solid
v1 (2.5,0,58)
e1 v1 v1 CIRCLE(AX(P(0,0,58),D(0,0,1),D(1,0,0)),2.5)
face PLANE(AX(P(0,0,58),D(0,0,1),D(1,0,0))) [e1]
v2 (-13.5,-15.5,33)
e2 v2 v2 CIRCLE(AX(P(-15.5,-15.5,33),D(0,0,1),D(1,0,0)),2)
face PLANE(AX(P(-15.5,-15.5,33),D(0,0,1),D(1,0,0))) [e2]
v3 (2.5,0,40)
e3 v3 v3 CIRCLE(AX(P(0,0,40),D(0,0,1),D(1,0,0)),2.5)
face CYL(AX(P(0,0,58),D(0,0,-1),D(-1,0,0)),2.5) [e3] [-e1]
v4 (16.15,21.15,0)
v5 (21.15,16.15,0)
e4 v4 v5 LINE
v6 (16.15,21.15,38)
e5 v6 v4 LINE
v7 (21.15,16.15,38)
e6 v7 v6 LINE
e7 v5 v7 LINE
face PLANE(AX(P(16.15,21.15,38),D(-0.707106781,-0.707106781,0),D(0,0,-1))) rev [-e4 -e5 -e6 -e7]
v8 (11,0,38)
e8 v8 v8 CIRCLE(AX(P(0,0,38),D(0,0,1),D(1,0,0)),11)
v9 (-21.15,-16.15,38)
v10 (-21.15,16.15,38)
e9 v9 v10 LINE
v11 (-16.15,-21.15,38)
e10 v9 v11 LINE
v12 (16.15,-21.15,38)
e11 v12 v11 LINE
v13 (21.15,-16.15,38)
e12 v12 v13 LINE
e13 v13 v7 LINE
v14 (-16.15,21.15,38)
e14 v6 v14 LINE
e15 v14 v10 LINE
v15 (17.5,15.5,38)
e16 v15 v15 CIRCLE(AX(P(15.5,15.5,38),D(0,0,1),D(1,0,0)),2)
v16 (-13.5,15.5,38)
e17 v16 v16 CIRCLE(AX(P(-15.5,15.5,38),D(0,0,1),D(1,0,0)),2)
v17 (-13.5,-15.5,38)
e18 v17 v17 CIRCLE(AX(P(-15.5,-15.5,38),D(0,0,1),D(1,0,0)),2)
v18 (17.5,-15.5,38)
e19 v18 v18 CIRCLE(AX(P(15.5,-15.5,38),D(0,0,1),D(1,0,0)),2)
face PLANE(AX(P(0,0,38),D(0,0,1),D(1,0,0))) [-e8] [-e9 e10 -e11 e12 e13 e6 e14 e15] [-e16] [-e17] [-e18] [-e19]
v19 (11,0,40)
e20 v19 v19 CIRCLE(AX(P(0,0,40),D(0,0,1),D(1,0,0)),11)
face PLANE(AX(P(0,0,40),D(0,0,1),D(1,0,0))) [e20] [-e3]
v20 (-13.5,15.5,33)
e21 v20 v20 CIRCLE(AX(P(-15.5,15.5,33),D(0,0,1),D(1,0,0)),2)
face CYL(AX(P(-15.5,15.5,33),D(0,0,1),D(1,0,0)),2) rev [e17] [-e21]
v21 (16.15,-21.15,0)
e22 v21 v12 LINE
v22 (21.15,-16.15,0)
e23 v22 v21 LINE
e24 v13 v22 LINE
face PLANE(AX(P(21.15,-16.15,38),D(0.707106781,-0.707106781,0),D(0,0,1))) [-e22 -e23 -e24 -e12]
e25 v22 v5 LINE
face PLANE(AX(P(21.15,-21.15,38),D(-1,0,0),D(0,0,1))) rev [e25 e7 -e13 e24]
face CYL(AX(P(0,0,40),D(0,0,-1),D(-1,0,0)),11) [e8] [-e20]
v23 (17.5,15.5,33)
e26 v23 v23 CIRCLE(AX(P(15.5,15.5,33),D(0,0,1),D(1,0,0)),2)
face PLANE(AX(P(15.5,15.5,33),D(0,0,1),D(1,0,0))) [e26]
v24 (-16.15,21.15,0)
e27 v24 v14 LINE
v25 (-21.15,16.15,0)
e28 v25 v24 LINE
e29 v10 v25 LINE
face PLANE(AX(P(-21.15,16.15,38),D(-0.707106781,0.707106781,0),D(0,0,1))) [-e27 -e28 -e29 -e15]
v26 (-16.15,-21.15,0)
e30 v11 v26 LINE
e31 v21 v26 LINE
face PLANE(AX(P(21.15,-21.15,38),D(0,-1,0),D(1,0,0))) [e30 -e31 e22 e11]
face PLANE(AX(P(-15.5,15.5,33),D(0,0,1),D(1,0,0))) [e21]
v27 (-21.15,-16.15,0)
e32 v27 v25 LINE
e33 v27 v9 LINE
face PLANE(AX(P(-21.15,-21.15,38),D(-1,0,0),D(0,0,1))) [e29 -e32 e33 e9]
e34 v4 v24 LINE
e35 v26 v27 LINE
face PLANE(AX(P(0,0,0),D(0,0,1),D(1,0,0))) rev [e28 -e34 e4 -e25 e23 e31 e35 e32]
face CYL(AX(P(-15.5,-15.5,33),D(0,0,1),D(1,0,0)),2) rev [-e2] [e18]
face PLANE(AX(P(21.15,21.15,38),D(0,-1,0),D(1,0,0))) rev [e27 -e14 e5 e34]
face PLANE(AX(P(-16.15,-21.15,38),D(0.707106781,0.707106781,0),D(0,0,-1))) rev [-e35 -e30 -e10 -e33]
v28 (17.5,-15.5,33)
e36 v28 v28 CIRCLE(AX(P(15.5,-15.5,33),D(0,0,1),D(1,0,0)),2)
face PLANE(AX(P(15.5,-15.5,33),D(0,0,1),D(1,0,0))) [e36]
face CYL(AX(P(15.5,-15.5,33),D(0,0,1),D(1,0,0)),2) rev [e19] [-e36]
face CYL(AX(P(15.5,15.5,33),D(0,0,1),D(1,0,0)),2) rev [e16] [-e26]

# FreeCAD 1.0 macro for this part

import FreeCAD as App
import Part
import Sketcher
from FreeCAD import Vector


def edges_at(feature, points):
    """Names of the edges that pass closest to the given points."""
    edges = feature.Shape.Edges
    near = lambda p: min(range(len(edges)), key=lambda i: edges[i].distToShape(Part.Vertex(*p))[0])
    return sorted({f"Edge{near(p) + 1}" for p in points})

doc = App.newDocument("Part")
body = doc.addObject("PartDesign::Body", "Body")

# Sketch on XY plane
sketch1 = doc.addObject("Sketcher::SketchObject", "Sketch")
body.addObject(sketch1)
sketch1.AttachmentSupport = (doc.XY_Plane, [""])
sketch1.MapMode = "FlatFace"
sketch1.addGeometry([
    Part.LineSegment(Vector(-21.15, 21.15, 0), Vector(-21.15, -21.15, 0)),
    Part.LineSegment(Vector(-21.15, -21.15, 0), Vector(21.15, -21.15, 0)),
    Part.LineSegment(Vector(21.15, -21.15, 0), Vector(21.15, 21.15, 0)),
    Part.LineSegment(Vector(21.15, 21.15, 0), Vector(-21.15, 21.15, 0)),
], False)
sketch1.addConstraint([
    Sketcher.Constraint("Coincident", 0, 2, 1, 1),
    Sketcher.Constraint("Coincident", 1, 2, 2, 1),
    Sketcher.Constraint("Coincident", 2, 2, 3, 1),
    Sketcher.Constraint("Coincident", 3, 2, 0, 1),
    Sketcher.Constraint("Vertical", 0),
    Sketcher.Constraint("Horizontal", 1),
    Sketcher.Constraint("Vertical", 2),
    Sketcher.Constraint("Horizontal", 3),
    Sketcher.Constraint("Symmetric", 0, 2, 2, 2, -1, 1),
    Sketcher.Constraint("Equal", 3, 0),
    Sketcher.Constraint("DistanceX", 1, 1, 1, 2, 42.3),
])
pad1 = doc.addObject("PartDesign::Pad", "Pad")
body.addObject(pad1)
pad1.Profile = sketch1
pad1.Length = 38
doc.recompute()

chamfer = doc.addObject("PartDesign::Chamfer", "Chamfer")
body.addObject(chamfer)
chamfer.Base = (pad1, edges_at(pad1, [
    (21.15, -21.15, 19),
    (-21.15, -21.15, 19),
    (-21.15, 21.15, 19),
    (21.15, 21.15, 19),
]))
chamfer.Size = 5

# Sketch on XY plane
sketch2 = doc.addObject("Sketcher::SketchObject", "Sketch001")
body.addObject(sketch2)
sketch2.AttachmentSupport = (doc.XY_Plane, [""])
sketch2.MapMode = "FlatFace"
sketch2.AttachmentOffset = App.Placement(Vector(0, 0, 38), App.Rotation())
sketch2.addGeometry([
    Part.Circle(Vector(-15.5, 15.5, 0), Vector(0, 0, 1), 2),
    Part.Circle(Vector(15.5, 15.5, 0), Vector(0, 0, 1), 2),
    Part.Circle(Vector(-15.5, -15.5, 0), Vector(0, 0, 1), 2),
    Part.Circle(Vector(15.5, -15.5, 0), Vector(0, 0, 1), 2),
], False)
sketch2.addConstraint([
    Sketcher.Constraint("Equal", 0, 1),
    Sketcher.Constraint("Equal", 1, 2),
    Sketcher.Constraint("Equal", 2, 3),
    Sketcher.Constraint("Symmetric", 1, 3, 2, 3, -1, 1),
    Sketcher.Constraint("Symmetric", 0, 3, 3, 3, -1, 1),
    Sketcher.Constraint("Symmetric", 0, 3, 1, 3, -2),
    Sketcher.Constraint("Diameter", 0, 4.0),
    Sketcher.Constraint("DistanceX", 0, 3, 1, 3, 31.0),
    Sketcher.Constraint("DistanceY", 2, 3, 0, 3, 31.0),
])
pocket1 = doc.addObject("PartDesign::Pocket", "Pocket")
body.addObject(pocket1)
pocket1.Profile = sketch2
pocket1.Length = 5

# Sketch on XY plane
sketch3 = doc.addObject("Sketcher::SketchObject", "Sketch002")
body.addObject(sketch3)
sketch3.AttachmentSupport = (doc.XY_Plane, [""])
sketch3.MapMode = "FlatFace"
sketch3.AttachmentOffset = App.Placement(Vector(0, 0, 38), App.Rotation())
sketch3.addGeometry(Part.Circle(Vector(0, 0, 0), Vector(0, 0, 1), 11), False)
sketch3.addConstraint([
    Sketcher.Constraint("Coincident", 0, 3, -1, 1),
    Sketcher.Constraint("Diameter", 0, 22.0),
])
pad2 = doc.addObject("PartDesign::Pad", "Pad001")
body.addObject(pad2)
pad2.Profile = sketch3
pad2.Length = 2

# Sketch on XY plane
sketch4 = doc.addObject("Sketcher::SketchObject", "Sketch003")
body.addObject(sketch4)
sketch4.AttachmentSupport = (doc.XY_Plane, [""])
sketch4.MapMode = "FlatFace"
sketch4.AttachmentOffset = App.Placement(Vector(0, 0, 40), App.Rotation())
sketch4.addGeometry(Part.Circle(Vector(0, 0, 0), Vector(0, 0, 1), 2.5), False)
sketch4.addConstraint([
    Sketcher.Constraint("Coincident", 0, 3, -1, 1),
    Sketcher.Constraint("Diameter", 0, 5.0),
])
pad3 = doc.addObject("PartDesign::Pad", "Pad002")
body.addObject(pad3)
pad3.Profile = sketch4
pad3.Length = 18

doc.recompute()
